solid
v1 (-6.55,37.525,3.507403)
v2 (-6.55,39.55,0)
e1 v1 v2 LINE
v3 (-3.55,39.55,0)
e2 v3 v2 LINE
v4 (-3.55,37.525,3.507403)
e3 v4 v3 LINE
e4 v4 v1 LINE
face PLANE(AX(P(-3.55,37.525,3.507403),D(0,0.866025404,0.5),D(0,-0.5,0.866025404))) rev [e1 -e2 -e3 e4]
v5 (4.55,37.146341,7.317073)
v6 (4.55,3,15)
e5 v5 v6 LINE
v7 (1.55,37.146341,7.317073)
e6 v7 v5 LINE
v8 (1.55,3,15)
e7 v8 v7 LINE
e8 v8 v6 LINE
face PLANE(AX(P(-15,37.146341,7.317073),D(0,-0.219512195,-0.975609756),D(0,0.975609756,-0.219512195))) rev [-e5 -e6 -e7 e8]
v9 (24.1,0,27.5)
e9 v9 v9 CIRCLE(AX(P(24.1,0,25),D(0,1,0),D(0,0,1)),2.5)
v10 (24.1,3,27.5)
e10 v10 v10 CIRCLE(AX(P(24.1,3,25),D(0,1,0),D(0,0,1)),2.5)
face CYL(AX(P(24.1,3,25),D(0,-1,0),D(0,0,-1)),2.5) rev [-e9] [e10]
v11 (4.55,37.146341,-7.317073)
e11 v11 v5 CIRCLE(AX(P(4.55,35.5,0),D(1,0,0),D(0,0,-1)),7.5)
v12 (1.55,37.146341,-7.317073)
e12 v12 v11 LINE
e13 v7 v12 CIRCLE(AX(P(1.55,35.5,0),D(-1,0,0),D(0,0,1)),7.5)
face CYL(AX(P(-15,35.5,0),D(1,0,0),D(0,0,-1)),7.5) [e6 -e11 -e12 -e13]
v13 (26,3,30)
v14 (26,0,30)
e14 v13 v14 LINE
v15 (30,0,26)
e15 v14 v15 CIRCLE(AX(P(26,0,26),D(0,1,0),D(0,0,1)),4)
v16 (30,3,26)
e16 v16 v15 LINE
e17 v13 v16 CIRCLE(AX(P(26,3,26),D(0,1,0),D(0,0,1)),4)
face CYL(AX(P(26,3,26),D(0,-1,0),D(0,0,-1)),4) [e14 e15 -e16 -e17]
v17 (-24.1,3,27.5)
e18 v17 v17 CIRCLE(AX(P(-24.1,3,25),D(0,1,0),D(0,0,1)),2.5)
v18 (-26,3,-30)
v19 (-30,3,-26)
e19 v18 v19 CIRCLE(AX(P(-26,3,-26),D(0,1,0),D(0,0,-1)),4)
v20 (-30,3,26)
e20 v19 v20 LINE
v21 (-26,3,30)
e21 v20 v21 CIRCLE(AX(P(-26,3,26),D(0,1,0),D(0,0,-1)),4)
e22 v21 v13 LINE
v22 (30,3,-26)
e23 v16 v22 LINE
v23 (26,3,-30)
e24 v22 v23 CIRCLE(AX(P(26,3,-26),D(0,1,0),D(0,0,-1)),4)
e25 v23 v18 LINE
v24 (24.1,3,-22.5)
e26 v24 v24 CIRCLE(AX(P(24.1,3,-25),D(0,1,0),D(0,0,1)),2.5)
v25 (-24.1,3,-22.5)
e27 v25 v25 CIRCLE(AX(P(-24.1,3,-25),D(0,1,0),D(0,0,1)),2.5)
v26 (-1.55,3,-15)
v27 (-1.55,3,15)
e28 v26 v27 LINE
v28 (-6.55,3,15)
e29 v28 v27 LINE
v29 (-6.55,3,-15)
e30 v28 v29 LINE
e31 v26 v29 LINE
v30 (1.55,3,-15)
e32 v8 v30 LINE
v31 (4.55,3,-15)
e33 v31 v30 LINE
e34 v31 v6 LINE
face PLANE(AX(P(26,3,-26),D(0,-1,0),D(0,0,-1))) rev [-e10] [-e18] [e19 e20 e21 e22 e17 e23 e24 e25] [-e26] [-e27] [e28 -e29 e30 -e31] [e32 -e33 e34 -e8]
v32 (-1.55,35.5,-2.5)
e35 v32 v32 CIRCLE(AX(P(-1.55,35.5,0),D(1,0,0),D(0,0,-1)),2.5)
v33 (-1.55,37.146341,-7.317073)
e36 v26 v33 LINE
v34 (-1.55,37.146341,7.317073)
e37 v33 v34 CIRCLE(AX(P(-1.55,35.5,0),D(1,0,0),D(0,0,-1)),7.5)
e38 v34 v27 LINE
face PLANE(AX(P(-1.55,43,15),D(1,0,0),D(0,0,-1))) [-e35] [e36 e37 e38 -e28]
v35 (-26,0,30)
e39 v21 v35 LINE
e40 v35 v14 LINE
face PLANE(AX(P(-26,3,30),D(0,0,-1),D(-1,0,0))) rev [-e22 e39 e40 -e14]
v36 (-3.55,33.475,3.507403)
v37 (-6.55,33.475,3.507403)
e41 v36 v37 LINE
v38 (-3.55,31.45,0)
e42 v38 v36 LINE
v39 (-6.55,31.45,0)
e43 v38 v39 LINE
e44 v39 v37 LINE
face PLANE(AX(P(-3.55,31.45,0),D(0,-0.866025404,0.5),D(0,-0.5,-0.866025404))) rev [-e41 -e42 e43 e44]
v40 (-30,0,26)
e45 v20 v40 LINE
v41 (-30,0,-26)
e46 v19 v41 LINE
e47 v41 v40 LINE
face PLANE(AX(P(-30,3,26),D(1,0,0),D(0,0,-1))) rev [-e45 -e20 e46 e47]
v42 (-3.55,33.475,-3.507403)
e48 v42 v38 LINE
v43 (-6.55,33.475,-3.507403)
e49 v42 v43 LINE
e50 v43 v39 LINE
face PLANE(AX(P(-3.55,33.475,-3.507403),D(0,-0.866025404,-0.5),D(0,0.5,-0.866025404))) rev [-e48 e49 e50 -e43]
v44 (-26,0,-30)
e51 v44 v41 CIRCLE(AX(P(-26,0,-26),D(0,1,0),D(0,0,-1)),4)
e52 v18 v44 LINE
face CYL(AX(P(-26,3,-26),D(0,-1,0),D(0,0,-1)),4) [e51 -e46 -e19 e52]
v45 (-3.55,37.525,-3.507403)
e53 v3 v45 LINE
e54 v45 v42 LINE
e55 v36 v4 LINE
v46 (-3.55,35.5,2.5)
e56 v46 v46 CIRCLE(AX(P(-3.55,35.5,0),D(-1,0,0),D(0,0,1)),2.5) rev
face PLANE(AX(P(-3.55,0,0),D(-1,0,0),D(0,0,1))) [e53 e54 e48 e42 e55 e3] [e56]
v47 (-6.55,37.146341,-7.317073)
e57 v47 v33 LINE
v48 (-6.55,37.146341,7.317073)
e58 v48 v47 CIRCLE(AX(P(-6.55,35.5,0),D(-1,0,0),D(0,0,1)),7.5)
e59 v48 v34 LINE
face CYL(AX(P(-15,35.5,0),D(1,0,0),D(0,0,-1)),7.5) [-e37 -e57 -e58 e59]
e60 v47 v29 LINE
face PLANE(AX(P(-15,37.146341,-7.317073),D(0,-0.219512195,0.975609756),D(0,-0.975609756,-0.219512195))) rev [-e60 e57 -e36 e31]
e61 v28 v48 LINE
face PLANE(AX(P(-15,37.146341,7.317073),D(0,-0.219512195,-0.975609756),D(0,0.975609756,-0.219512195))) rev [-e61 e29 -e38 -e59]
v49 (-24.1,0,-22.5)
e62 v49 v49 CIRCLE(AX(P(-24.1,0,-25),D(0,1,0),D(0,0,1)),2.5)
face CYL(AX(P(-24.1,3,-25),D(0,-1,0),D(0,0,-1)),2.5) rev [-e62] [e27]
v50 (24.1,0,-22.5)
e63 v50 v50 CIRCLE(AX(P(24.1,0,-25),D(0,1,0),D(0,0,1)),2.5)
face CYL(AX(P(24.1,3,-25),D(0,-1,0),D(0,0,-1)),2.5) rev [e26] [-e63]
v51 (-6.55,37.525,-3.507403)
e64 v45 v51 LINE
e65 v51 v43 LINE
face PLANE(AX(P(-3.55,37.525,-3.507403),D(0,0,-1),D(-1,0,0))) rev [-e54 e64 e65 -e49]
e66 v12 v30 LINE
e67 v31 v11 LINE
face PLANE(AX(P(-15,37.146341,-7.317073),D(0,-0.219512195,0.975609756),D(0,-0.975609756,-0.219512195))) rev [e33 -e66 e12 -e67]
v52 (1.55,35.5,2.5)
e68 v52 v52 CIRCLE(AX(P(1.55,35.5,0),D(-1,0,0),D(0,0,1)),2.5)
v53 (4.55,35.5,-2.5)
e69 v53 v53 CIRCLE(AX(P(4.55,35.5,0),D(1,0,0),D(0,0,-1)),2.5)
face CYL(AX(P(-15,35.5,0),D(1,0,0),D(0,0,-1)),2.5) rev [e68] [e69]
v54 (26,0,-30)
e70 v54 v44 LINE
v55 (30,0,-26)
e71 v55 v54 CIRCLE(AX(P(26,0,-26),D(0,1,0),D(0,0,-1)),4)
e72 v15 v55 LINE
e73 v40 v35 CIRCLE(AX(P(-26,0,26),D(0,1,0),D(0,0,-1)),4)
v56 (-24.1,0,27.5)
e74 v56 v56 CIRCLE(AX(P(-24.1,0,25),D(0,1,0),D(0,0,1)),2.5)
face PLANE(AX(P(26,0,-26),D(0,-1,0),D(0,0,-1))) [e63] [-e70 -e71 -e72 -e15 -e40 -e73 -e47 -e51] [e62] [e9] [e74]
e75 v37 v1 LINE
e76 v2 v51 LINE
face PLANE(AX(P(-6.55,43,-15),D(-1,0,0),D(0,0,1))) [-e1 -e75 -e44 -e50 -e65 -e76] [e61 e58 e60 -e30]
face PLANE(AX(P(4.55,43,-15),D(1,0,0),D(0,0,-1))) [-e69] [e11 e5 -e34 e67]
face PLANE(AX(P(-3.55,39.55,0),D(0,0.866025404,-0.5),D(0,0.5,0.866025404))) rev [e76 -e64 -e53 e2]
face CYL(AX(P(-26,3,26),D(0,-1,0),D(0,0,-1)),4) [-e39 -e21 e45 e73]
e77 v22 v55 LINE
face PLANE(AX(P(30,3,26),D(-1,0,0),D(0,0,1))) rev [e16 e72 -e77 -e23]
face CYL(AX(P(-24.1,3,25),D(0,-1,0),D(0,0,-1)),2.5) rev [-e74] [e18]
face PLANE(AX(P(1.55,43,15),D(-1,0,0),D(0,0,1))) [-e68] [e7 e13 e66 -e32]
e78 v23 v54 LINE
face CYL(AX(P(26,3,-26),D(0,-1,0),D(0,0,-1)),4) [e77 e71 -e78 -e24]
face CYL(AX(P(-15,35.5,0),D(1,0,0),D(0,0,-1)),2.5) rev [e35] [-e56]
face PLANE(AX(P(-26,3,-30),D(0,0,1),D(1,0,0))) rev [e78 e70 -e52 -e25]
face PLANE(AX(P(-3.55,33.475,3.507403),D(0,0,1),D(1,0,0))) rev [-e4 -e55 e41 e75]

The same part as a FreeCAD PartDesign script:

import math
import FreeCAD as App
import Part
import Sketcher

V = App.Vector
Q = App.Units.Quantity

doc = App.newDocument("Part")
params = doc.addObject("Spreadsheet::Sheet", "Params")
for row, (alias, value) in enumerate([
    ("sketch1_diameter", "5 mm"),
    ("sketch1_radius", "4 mm"),
    ("sketch1_width", "52 mm"),
    ("pad1_length", "3 mm"),
    ("sketch2_width", "30 mm"),
    ("pad2_length", "40 mm"),
    ("sketch3_radius", "7.5 mm"),
    ("sketch3_width", "40 mm"),
    ("sketch3_height", "15 mm"),
    ("pocket1_length", "30 mm"),
    ("sketch4_radius", "7.5 mm"),
    ("sketch4_width", "40 mm"),
    ("sketch4_height", "15 mm"),
    ("pocket2_length", "30 mm"),
    ("sketch5_height", "30 mm"),
    ("sketch5_width", "3.1 mm"),
    ("pocket3_length", "40 mm"),
    ("sketch6_diameter", "5 mm"),
    ("pocket4_length", "30 mm"),
    ("sketch7_width", "4.05 mm"),
    ("pocket5_length", "3 mm"),
], start=1):
    params.set(f"A{row}", alias)
    params.set(f"B{row}", "=" + value)
    params.setAlias(f"B{row}", alias)

body = doc.addObject("PartDesign::Body", "Body")

sketch1 = body.newObject("Sketcher::SketchObject", "Sketch")
sketch1.AttachmentSupport = (doc.getObject("XZ_Plane"), [""])
sketch1.MapMode = "FlatFace"
sketch1.addGeometry([
    Part.LineSegment(V(-26, 30, 0), V(26, 30, 0)),
    Part.ArcOfCircle(Part.Circle(V(26, 26, 0), V(0, 0, 1), 4), math.radians(0), math.radians(90)),
    Part.LineSegment(V(30, 26, 0), V(30, -26, 0)),
    Part.ArcOfCircle(Part.Circle(V(26, -26, 0), V(0, 0, 1), 4), math.radians(-90), math.radians(0)),
    Part.LineSegment(V(26, -30, 0), V(-26, -30, 0)),
    Part.ArcOfCircle(Part.Circle(V(-26, -26, 0), V(0, 0, 1), 4), math.radians(180), math.radians(270)),
    Part.LineSegment(V(-30, -26, 0), V(-30, 26, 0)),
    Part.ArcOfCircle(Part.Circle(V(-26, 26, 0), V(0, 0, 1), 4), math.radians(90), math.radians(180)),
    Part.Circle(V(-24.1, 25, 0), V(0, 0, 1), 2.5),
    Part.Circle(V(24.1, 25, 0), V(0, 0, 1), 2.5),
    Part.Circle(V(-24.1, -25, 0), V(0, 0, 1), 2.5),
    Part.Circle(V(24.1, -25, 0), V(0, 0, 1), 2.5),
], False)
sketch1.addConstraint([
    Sketcher.Constraint("Tangent", 0, 2, 1, 2),
    Sketcher.Constraint("Tangent", 1, 1, 2, 1),
    Sketcher.Constraint("Tangent", 2, 2, 3, 2),
    Sketcher.Constraint("Tangent", 3, 1, 4, 1),
    Sketcher.Constraint("Tangent", 4, 2, 5, 2),
    Sketcher.Constraint("Tangent", 5, 1, 6, 1),
    Sketcher.Constraint("Tangent", 6, 2, 7, 2),
    Sketcher.Constraint("Tangent", 7, 1, 0, 1),
    Sketcher.Constraint("Horizontal", 0),
    Sketcher.Constraint("Vertical", 2),
    Sketcher.Constraint("Horizontal", 4),
    Sketcher.Constraint("Vertical", 6),
    Sketcher.Constraint("Equal", 1, 3),
    Sketcher.Constraint("Equal", 3, 5),
    Sketcher.Constraint("Equal", 5, 7),
    Sketcher.Constraint("Equal", 8, 9),
    Sketcher.Constraint("Equal", 9, 10),
    Sketcher.Constraint("Equal", 10, 11),
    Sketcher.Constraint("Symmetric", 1, 3, 5, 3, -1, 1),
    Sketcher.Constraint("Symmetric", 9, 3, 10, 3, -1, 1),
    Sketcher.Constraint("Symmetric", 8, 3, 11, 3, -1, 1),
    Sketcher.Constraint("Symmetric", 8, 3, 9, 3, -2),
    Sketcher.Constraint("Equal", 4, 2),
    Sketcher.Constraint("Diameter", 8, 5.0),
    Sketcher.Constraint("Radius", 1, 4.0),
    Sketcher.Constraint("DistanceX", 0, 1, 0, 2, 52.0),
    Sketcher.Constraint("DistanceY", -1, 1, 8, 3, 25.0),
    Sketcher.Constraint("DistanceX", 8, 3, -1, 1, 24.1),
])
sketch1.setExpression("Constraints[23]", "Params.sketch1_diameter")
sketch1.setExpression("Constraints[24]", "Params.sketch1_radius")
sketch1.setExpression("Constraints[25]", "Params.sketch1_width")
pad1 = body.newObject("PartDesign::Pad", "Pad")
pad1.Profile = sketch1
pad1.setExpression("Length", "Params.pad1_length")
pad1.Reversed = True

sketch2 = body.newObject("Sketcher::SketchObject", "Sketch001")
sketch2.AttachmentSupport = (doc.getObject("XZ_Plane"), [""])
sketch2.MapMode = "FlatFace"
sketch2.AttachmentOffset = App.Placement(V(0, 0, -3), App.Rotation())
sketch2.addGeometry([
    Part.LineSegment(V(-15, -15, 0), V(-15, 15, 0)),
    Part.LineSegment(V(-15, 15, 0), V(15, 15, 0)),
    Part.LineSegment(V(15, 15, 0), V(15, -15, 0)),
    Part.LineSegment(V(15, -15, 0), V(-15, -15, 0)),
], False)
sketch2.addConstraint([
    Sketcher.Constraint("Coincident", 0, 2, 1, 1),
    Sketcher.Constraint("Coincident", 1, 2, 2, 1),
    Sketcher.Constraint("Coincident", 2, 2, 3, 1),
    Sketcher.Constraint("Coincident", 3, 2, 0, 1),
    Sketcher.Constraint("Vertical", 0),
    Sketcher.Constraint("Horizontal", 1),
    Sketcher.Constraint("Vertical", 2),
    Sketcher.Constraint("Horizontal", 3),
    Sketcher.Constraint("Symmetric", 0, 2, 2, 2, -1, 1),
    Sketcher.Constraint("Equal", 3, 0),
    Sketcher.Constraint("DistanceX", 1, 1, 1, 2, 30.0),
])
sketch2.setExpression("Constraints[10]", "Params.sketch2_width")
pad2 = body.newObject("PartDesign::Pad", "Pad001")
pad2.Profile = sketch2
pad2.setExpression("Length", "Params.pad2_length")
pad2.Reversed = True

sketch3 = body.newObject("Sketcher::SketchObject", "Sketch002")
sketch3.AttachmentSupport = (doc.getObject("YZ_Plane"), [""])
sketch3.MapMode = "FlatFace"
sketch3.AttachmentOffset = App.Placement(V(0, 0, 15), App.Rotation())
sketch3.addGeometry([
    Part.LineSegment(V(3, 15, 0), V(37.146341, 7.317073, 0)),
    Part.ArcOfCircle(Part.Circle(V(35.5, 0, 0), V(0, 0, 1), 7.5), math.radians(0), math.radians(77.319617)),
    Part.LineSegment(V(43, 0, 0), V(43, 15, 0)),
    Part.LineSegment(V(43, 15, 0), V(3, 15, 0)),
], False)
sketch3.addConstraint([
    Sketcher.Constraint("Tangent", 0, 2, 1, 2),
    Sketcher.Constraint("Tangent", 1, 1, 2, 1),
    Sketcher.Constraint("Coincident", 2, 2, 3, 1),
    Sketcher.Constraint("Coincident", 3, 2, 0, 1),
    Sketcher.Constraint("Vertical", 2),
    Sketcher.Constraint("Horizontal", 3),
    Sketcher.Constraint("PointOnObject", 1, 3, -1),
    Sketcher.Constraint("Radius", 1, 7.5),
    Sketcher.Constraint("DistanceX", 3, 2, 3, 1, 40.0),
    Sketcher.Constraint("DistanceY", 2, 1, 2, 2, 15.0),
    Sketcher.Constraint("DistanceX", -1, 1, 1, 1, 43.0),
])
sketch3.setExpression("Constraints[7]", "Params.sketch3_radius")
sketch3.setExpression("Constraints[8]", "Params.sketch3_width")
sketch3.setExpression("Constraints[9]", "Params.sketch3_height")
pocket1 = body.newObject("PartDesign::Pocket", "Pocket")
pocket1.Profile = sketch3
pocket1.setExpression("Length", "Params.pocket1_length")

sketch4 = body.newObject("Sketcher::SketchObject", "Sketch003")
sketch4.AttachmentSupport = (doc.getObject("YZ_Plane"), [""])
sketch4.MapMode = "FlatFace"
sketch4.AttachmentOffset = App.Placement(V(0, 0, 15), App.Rotation())
sketch4.addGeometry([
    Part.LineSegment(V(37.146341, -7.317073, 0), V(3, -15, 0)),
    Part.LineSegment(V(3, -15, 0), V(43, -15, 0)),
    Part.LineSegment(V(43, -15, 0), V(43, 0, 0)),
    Part.ArcOfCircle(Part.Circle(V(35.5, 0, 0), V(0, 0, 1), 7.5), math.radians(-77.319617), math.radians(0)),
], False)
sketch4.addConstraint([
    Sketcher.Constraint("Coincident", 0, 2, 1, 1),
    Sketcher.Constraint("Coincident", 1, 2, 2, 1),
    Sketcher.Constraint("Tangent", 2, 2, 3, 2),
    Sketcher.Constraint("Tangent", 3, 1, 0, 1),
    Sketcher.Constraint("Horizontal", 1),
    Sketcher.Constraint("Vertical", 2),
    Sketcher.Constraint("PointOnObject", 3, 3, -1),
    Sketcher.Constraint("Radius", 3, 7.5),
    Sketcher.Constraint("DistanceX", 1, 1, 1, 2, 40.0),
    Sketcher.Constraint("DistanceY", 2, 1, 2, 2, 15.0),
    Sketcher.Constraint("DistanceX", -1, 1, 0, 2, 3.0),
])
sketch4.setExpression("Constraints[7]", "Params.sketch4_radius")
sketch4.setExpression("Constraints[8]", "Params.sketch4_width")
sketch4.setExpression("Constraints[9]", "Params.sketch4_height")
pocket2 = body.newObject("PartDesign::Pocket", "Pocket001")
pocket2.Profile = sketch4
pocket2.setExpression("Length", "Params.pocket2_length")

sketch5 = body.newObject("Sketcher::SketchObject", "Sketch004")
sketch5.AttachmentSupport = (doc.getObject("XZ_Plane"), [""])
sketch5.MapMode = "FlatFace"
sketch5.AttachmentOffset = App.Placement(V(0, 0, -23), App.Rotation())
sketch5.addGeometry([
    Part.LineSegment(V(-1.55, -15, 0), V(-1.55, 15, 0)),
    Part.LineSegment(V(-1.55, 15, 0), V(1.55, 15, 0)),
    Part.LineSegment(V(1.55, 15, 0), V(1.55, -15, 0)),
    Part.LineSegment(V(1.55, -15, 0), V(-1.55, -15, 0)),
    Part.LineSegment(V(-15, -15, 0), V(-15, 15, 0)),
    Part.LineSegment(V(-15, 15, 0), V(-6.55, 15, 0)),
    Part.LineSegment(V(-6.55, 15, 0), V(-6.55, -15, 0)),
    Part.LineSegment(V(-6.55, -15, 0), V(-15, -15, 0)),
    Part.LineSegment(V(4.55, -15, 0), V(4.55, 15, 0)),
    Part.LineSegment(V(4.55, 15, 0), V(15, 15, 0)),
    Part.LineSegment(V(15, 15, 0), V(15, -15, 0)),
    Part.LineSegment(V(15, -15, 0), V(4.55, -15, 0)),
], False)
sketch5.addConstraint([
    Sketcher.Constraint("Coincident", 0, 2, 1, 1),
    Sketcher.Constraint("Coincident", 1, 2, 2, 1),
    Sketcher.Constraint("Coincident", 2, 2, 3, 1),
    Sketcher.Constraint("Coincident", 3, 2, 0, 1),
    Sketcher.Constraint("Coincident", 4, 2, 5, 1),
    Sketcher.Constraint("Coincident", 5, 2, 6, 1),
    Sketcher.Constraint("Coincident", 6, 2, 7, 1),
    Sketcher.Constraint("Coincident", 7, 2, 4, 1),
    Sketcher.Constraint("Coincident", 8, 2, 9, 1),
    Sketcher.Constraint("Coincident", 9, 2, 10, 1),
    Sketcher.Constraint("Coincident", 10, 2, 11, 1),
    Sketcher.Constraint("Coincident", 11, 2, 8, 1),
    Sketcher.Constraint("Vertical", 0),
    Sketcher.Constraint("Horizontal", 1),
    Sketcher.Constraint("Vertical", 2),
    Sketcher.Constraint("Horizontal", 3),
    Sketcher.Constraint("Vertical", 4),
    Sketcher.Constraint("Horizontal", 5),
    Sketcher.Constraint("Vertical", 6),
    Sketcher.Constraint("Horizontal", 7),
    Sketcher.Constraint("Vertical", 8),
    Sketcher.Constraint("Horizontal", 9),
    Sketcher.Constraint("Vertical", 10),
    Sketcher.Constraint("Horizontal", 11),
    Sketcher.Constraint("Symmetric", 0, 2, 2, 2, -1, 1),
    Sketcher.Constraint("Symmetric", 7, 2, 9, 2, -1, 1),
    Sketcher.Constraint("Horizontal", 1, 2, 4, 2),
    Sketcher.Constraint("Horizontal", 3, 2, 6, 2),
    Sketcher.Constraint("Horizontal", 7, 2, 10, 2),
    Sketcher.Constraint("DistanceY", 0, 1, 0, 2, 30.0),
    Sketcher.Constraint("DistanceX", 1, 1, 1, 2, 3.1),
    Sketcher.Constraint("DistanceX", 4, 2, -1, 1, 15.0),
    Sketcher.Constraint("DistanceX", 5, 2, 0, 2, 5.0),
    Sketcher.Constraint("DistanceX", 1, 2, 8, 2, 3.0),
])
sketch5.setExpression("Constraints[29]", "Params.sketch5_height")
sketch5.setExpression("Constraints[30]", "Params.sketch5_width")
pocket3 = body.newObject("PartDesign::Pocket", "Pocket002")
pocket3.Profile = sketch5
pocket3.setExpression("Length", "Params.pocket3_length")
pocket3.Midplane = True

sketch6 = body.newObject("Sketcher::SketchObject", "Sketch005")
sketch6.AttachmentSupport = (doc.getObject("YZ_Plane"), [""])
sketch6.MapMode = "FlatFace"
sketch6.addGeometry(Part.Circle(V(35.5, 0, 0), V(0, 0, 1), 2.5), False)
sketch6.addConstraint([
    Sketcher.Constraint("PointOnObject", 0, 3, -1),
    Sketcher.Constraint("Diameter", 0, 5.0),
    Sketcher.Constraint("DistanceX", -1, 1, 0, 3, 35.5),
])
sketch6.setExpression("Constraints[1]", "Params.sketch6_diameter")
pocket4 = body.newObject("PartDesign::Pocket", "Pocket003")
pocket4.Profile = sketch6
pocket4.setExpression("Length", "Params.pocket4_length")
pocket4.Midplane = True

sketch7 = body.newObject("Sketcher::SketchObject", "Sketch006")
sketch7.AttachmentSupport = (doc.getObject("YZ_Plane"), [""])
sketch7.MapMode = "FlatFace"
sketch7.AttachmentOffset = App.Placement(V(0, 0, -6.55), App.Rotation())
sketch7.addGeometry([
    Part.LineSegment(V(37.525, -3.507403, 0), V(33.475, -3.507403, 0)),
    Part.LineSegment(V(33.475, -3.507403, 0), V(31.45, 0, 0)),
    Part.LineSegment(V(31.45, 0, 0), V(33.475, 3.507403, 0)),
    Part.LineSegment(V(33.475, 3.507403, 0), V(37.525, 3.507403, 0)),
    Part.LineSegment(V(37.525, 3.507403, 0), V(39.55, 0, 0)),
    Part.LineSegment(V(39.55, 0, 0), V(37.525, -3.507403, 0)),
], False)
sketch7.addConstraint([
    Sketcher.Constraint("Coincident", 0, 2, 1, 1),
    Sketcher.Constraint("Coincident", 1, 2, 2, 1),
    Sketcher.Constraint("Coincident", 2, 2, 3, 1),
    Sketcher.Constraint("Coincident", 3, 2, 4, 1),
    Sketcher.Constraint("Coincident", 4, 2, 5, 1),
    Sketcher.Constraint("Coincident", 5, 2, 0, 1),
    Sketcher.Constraint("Horizontal", 0),
    Sketcher.Constraint("Horizontal", 3),
    Sketcher.Constraint("Symmetric", 0, 2, 2, 2, -1),
    Sketcher.Constraint("PointOnObject", 1, 2, -1),
    Sketcher.Constraint("PointOnObject", 4, 2, -1),
    Sketcher.Constraint("Parallel", 1, 4),
    Sketcher.Constraint("Parallel", 2, 5),
    Sketcher.Constraint("Angle", 1, Q("120 deg")),
    Sketcher.Constraint("DistanceX", 0, 2, 0, 1, 4.05),
    Sketcher.Constraint("DistanceX", 1, 2, 4, 2, 8.1),
    Sketcher.Constraint("DistanceX", -1, 1, 1, 2, 31.45),
])
sketch7.setExpression("Constraints[14]", "Params.sketch7_width")
pocket5 = body.newObject("PartDesign::Pocket", "Pocket004")
pocket5.Profile = sketch7
pocket5.setExpression("Length", "Params.pocket5_length")
pocket5.Reversed = True

doc.recompute()
